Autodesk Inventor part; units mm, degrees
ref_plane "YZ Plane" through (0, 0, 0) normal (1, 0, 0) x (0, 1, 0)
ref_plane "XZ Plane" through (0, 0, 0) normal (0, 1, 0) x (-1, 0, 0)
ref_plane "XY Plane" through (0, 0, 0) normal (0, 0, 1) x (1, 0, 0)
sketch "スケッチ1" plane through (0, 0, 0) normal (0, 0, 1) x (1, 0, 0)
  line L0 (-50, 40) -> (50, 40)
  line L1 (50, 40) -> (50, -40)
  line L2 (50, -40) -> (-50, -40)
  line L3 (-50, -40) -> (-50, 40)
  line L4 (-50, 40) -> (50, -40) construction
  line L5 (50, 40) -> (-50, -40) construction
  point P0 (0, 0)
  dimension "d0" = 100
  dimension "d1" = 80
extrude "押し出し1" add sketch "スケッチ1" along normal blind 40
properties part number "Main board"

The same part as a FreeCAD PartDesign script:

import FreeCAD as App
import Part
import Sketcher

V = App.Vector
Q = App.Units.Quantity

doc = App.newDocument("Part")
params = doc.addObject("Spreadsheet::Sheet", "Params")
for row, (alias, value) in enumerate([
    ("sketch1_width", "3.937 in"),
    ("pad1_length", "1.5748031 in"),
], start=1):
    params.set(f"A{row}", alias)
    params.set(f"B{row}", "=" + value)
    params.setAlias(f"B{row}", alias)

body = doc.addObject("PartDesign::Body", "Body")

# Sketch on XY plane
sketch1 = doc.addObject("Sketcher::SketchObject", "Sketch")
body.addObject(sketch1)
sketch1.AttachmentSupport = (doc.XY_Plane, [""])
sketch1.MapMode = "FlatFace"
sketch1.addGeometry([
    Part.LineSegment(V(50, 40, 0), V(-50, 40, 0)),
    Part.LineSegment(V(-50, 40, 0), V(-50, -40, 0)),
    Part.LineSegment(V(-50, -40, 0), V(50, -40, 0)),
    Part.LineSegment(V(50, -40, 0), V(50, 40, 0)),
], False)
sketch1.addConstraint([
    Sketcher.Constraint("Coincident", 0, 2, 1, 1),
    Sketcher.Constraint("Coincident", 1, 2, 2, 1),
    Sketcher.Constraint("Coincident", 2, 2, 3, 1),
    Sketcher.Constraint("Coincident", 3, 2, 0, 1),
    Sketcher.Constraint("Horizontal", 0),
    Sketcher.Constraint("Vertical", 1),
    Sketcher.Constraint("Horizontal", 2),
    Sketcher.Constraint("Vertical", 3),
    Sketcher.Constraint("Symmetric", 0, 2, 2, 2, -1, 1),
    Sketcher.Constraint("DistanceX", 0, 2, 0, 1, Q("3.937 in")),
    Sketcher.Constraint("DistanceY", 1, 2, 1, 1, Q("3.1496 in")),
])
sketch1.setExpression("Constraints[9]", "Params.sketch1_width")
pad1 = doc.addObject("PartDesign::Pad", "Pad")
body.addObject(pad1)
pad1.Profile = sketch1
pad1.setExpression("Length", "Params.pad1_length")

doc.recompute()
